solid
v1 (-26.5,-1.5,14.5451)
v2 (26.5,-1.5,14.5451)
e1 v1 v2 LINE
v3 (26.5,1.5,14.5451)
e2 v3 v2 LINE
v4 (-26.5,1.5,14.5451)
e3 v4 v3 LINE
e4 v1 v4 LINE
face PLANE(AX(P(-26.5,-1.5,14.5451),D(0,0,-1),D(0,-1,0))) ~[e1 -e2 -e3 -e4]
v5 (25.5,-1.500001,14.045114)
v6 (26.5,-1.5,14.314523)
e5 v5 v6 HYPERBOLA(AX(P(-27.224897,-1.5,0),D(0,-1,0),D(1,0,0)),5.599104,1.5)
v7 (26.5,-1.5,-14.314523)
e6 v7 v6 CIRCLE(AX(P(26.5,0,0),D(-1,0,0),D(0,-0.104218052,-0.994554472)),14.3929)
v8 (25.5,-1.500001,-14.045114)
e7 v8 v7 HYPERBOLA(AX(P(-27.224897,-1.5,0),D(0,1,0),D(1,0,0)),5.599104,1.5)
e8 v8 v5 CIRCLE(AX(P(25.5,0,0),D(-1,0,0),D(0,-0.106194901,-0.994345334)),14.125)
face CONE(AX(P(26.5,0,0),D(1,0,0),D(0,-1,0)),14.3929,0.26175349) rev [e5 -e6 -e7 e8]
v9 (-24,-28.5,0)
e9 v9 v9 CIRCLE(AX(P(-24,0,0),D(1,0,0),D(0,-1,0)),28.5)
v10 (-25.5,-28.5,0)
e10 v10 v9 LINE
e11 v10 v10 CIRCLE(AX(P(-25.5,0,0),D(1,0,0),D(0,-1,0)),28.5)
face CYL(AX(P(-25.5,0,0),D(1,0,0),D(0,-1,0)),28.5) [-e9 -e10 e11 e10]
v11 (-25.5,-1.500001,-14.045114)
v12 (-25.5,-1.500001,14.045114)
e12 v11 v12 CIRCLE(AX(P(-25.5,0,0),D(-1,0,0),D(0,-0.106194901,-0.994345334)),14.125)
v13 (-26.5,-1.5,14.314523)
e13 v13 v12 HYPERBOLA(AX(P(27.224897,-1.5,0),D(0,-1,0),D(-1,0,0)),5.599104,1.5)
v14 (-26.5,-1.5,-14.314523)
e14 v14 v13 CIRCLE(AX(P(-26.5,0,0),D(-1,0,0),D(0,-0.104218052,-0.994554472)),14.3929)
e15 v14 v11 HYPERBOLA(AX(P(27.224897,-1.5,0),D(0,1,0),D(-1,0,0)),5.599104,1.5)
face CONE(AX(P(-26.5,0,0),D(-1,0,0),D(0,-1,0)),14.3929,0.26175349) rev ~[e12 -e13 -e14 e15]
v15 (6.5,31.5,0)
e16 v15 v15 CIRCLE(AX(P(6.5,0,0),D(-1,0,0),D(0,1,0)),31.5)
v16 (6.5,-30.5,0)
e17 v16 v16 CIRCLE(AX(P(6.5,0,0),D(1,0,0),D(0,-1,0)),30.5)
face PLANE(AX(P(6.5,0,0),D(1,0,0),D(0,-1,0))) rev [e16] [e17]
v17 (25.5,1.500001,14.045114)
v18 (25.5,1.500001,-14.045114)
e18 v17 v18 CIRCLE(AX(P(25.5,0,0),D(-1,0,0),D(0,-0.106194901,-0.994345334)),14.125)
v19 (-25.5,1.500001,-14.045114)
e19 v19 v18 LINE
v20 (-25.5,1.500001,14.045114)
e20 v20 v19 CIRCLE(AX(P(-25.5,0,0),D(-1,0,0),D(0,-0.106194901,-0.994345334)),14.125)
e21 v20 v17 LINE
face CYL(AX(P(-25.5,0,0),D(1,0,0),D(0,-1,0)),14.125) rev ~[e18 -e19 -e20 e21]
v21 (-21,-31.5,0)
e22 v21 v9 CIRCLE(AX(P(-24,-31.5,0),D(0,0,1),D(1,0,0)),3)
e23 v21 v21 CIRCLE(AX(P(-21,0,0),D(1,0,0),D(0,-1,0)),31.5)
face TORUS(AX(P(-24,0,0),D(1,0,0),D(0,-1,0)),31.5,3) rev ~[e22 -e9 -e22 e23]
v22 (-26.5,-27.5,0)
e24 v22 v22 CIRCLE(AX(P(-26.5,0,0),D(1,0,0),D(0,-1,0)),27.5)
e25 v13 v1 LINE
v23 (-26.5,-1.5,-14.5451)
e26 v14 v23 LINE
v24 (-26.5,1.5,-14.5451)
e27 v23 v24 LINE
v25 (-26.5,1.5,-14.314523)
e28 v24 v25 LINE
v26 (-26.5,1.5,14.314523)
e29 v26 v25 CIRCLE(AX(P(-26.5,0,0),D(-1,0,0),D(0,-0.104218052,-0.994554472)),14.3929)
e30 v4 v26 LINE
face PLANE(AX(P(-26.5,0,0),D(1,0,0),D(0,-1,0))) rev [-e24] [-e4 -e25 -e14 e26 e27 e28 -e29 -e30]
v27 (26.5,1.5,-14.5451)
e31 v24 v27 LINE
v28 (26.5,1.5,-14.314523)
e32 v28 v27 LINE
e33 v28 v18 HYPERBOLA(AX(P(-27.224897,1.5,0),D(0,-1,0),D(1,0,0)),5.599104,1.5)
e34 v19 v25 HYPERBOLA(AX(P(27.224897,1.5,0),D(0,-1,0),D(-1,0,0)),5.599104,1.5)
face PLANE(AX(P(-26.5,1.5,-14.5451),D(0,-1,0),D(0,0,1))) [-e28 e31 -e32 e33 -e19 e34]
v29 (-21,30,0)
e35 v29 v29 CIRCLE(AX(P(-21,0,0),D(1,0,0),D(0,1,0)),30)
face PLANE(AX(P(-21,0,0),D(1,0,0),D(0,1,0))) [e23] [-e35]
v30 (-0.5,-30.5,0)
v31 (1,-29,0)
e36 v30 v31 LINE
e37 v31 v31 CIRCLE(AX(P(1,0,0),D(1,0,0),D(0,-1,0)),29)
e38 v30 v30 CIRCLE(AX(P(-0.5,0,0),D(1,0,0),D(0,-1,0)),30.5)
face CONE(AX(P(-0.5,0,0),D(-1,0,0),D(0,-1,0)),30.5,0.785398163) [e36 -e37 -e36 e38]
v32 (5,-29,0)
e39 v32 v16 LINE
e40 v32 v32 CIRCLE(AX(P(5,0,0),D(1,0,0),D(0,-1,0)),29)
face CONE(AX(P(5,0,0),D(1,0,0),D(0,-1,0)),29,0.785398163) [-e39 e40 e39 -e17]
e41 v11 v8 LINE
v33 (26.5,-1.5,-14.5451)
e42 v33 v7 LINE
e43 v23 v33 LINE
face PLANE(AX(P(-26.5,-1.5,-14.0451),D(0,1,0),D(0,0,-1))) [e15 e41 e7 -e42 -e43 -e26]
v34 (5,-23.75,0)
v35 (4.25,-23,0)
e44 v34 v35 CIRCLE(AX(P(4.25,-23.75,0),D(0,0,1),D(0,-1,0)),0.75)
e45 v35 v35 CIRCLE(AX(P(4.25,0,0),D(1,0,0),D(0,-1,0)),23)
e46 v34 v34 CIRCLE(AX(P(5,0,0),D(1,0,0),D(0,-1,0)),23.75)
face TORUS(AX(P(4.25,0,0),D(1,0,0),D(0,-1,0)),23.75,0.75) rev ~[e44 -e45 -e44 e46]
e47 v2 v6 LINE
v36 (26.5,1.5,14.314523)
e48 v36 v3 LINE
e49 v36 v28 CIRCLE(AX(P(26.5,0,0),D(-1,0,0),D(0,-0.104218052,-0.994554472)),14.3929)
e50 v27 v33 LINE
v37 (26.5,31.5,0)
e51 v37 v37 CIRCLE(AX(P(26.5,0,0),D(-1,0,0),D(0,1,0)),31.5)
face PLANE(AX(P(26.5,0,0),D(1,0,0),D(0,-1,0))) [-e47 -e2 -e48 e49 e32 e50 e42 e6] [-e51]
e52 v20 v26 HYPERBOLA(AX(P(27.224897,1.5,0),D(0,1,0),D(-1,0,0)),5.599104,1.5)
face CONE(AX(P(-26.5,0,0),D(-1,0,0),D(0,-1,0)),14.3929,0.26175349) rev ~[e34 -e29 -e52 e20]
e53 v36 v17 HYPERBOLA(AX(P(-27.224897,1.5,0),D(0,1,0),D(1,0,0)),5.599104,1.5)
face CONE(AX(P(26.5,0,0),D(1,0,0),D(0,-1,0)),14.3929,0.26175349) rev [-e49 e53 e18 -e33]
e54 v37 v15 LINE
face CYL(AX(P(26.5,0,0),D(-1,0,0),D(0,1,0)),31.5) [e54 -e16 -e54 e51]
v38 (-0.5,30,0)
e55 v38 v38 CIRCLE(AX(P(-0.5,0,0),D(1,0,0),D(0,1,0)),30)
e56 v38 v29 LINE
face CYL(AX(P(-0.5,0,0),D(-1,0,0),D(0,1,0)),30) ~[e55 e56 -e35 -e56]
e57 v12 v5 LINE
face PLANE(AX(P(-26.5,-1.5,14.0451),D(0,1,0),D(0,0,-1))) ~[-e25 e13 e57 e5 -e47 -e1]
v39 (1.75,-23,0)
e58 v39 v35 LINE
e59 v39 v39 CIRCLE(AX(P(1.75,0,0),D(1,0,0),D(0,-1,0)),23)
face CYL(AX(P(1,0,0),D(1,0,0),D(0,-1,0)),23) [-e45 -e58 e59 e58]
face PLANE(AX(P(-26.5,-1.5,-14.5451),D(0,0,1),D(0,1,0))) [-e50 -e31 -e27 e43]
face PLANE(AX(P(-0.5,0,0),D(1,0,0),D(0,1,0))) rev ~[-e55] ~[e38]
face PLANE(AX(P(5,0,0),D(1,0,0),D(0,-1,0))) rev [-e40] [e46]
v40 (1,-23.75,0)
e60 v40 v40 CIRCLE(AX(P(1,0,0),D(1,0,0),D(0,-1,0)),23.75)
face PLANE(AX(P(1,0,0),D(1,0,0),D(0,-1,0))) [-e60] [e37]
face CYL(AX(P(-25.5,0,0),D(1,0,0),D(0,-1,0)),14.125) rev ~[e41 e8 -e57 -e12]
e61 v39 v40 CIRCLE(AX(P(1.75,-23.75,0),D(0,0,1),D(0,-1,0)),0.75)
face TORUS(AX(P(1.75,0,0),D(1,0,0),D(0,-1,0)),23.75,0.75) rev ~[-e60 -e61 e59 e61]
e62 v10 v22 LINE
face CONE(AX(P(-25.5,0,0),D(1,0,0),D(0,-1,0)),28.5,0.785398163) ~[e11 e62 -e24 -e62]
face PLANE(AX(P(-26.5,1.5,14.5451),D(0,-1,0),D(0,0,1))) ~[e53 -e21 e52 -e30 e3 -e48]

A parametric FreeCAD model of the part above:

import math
import FreeCAD as App
import Part
import Sketcher


def edges_at(feature, points):
    """Names of the edges that pass closest to the given points."""
    edges = feature.Shape.Edges
    near = lambda p: min(range(len(edges)), key=lambda i: edges[i].distToShape(Part.Vertex(*p))[0])
    return sorted({f"Edge{near(p) + 1}" for p in points})

doc = App.newDocument("Part")
body = doc.addObject("PartDesign::Body", "Body")

sketch1 = doc.addObject("Sketcher::SketchObject", "Sketch")
body.addObject(sketch1)
sketch1.AttachmentSupport = (doc.XY_Plane, [""])
sketch1.MapMode = "FlatFace"
sketch1.addGeometry([
    Part.LineSegment(App.Vector(-25.5, -14.1, 0), App.Vector(-26.5, -14.4, 0)),
    Part.LineSegment(App.Vector(-26.5, -14.4, 0), App.Vector(-26.5, -27.5, 0)),
    Part.LineSegment(App.Vector(-26.5, -27.5, 0), App.Vector(-25.5, -28.5, 0)),
    Part.LineSegment(App.Vector(-25.5, -28.5, 0), App.Vector(-24, -28.5, 0)),
    Part.ArcOfCircle(Part.Circle(App.Vector(-24, -31.5, 0), App.Vector(0, 0, 1), 3), math.radians(0), math.radians(90)),
    Part.LineSegment(App.Vector(-21, -31.5, 0), App.Vector(-21, -36.8, 0)),
    Part.LineSegment(App.Vector(-21, -36.8, 0), App.Vector(-0.5, -36.8, 0)),
    Part.LineSegment(App.Vector(-0.5, -36.8, 0), App.Vector(-0.5, -30.5, 0)),
    Part.LineSegment(App.Vector(-0.5, -30.5, 0), App.Vector(1, -29, 0)),
    Part.LineSegment(App.Vector(1, -29, 0), App.Vector(1, -23, 0)),
    Part.LineSegment(App.Vector(1, -23, 0), App.Vector(5, -23, 0)),
    Part.LineSegment(App.Vector(5, -23, 0), App.Vector(5, -29, 0)),
    Part.LineSegment(App.Vector(5, -29, 0), App.Vector(6.5, -30.5, 0)),
    Part.LineSegment(App.Vector(6.5, -30.5, 0), App.Vector(6.5, -45.1, 0)),
    Part.LineSegment(App.Vector(6.5, -45.1, 0), App.Vector(26.5, -45.1, 0)),
    Part.LineSegment(App.Vector(26.5, -45.1, 0), App.Vector(26.5, -14.4, 0)),
    Part.LineSegment(App.Vector(26.5, -14.4, 0), App.Vector(25.5, -14.1, 0)),
    Part.LineSegment(App.Vector(25.5, -14.1, 0), App.Vector(-25.5, -14.1, 0)),
], False)
sketch1.addConstraint([
    Sketcher.Constraint("Coincident", 0, 2, 1, 1),
    Sketcher.Constraint("Coincident", 1, 2, 2, 1),
    Sketcher.Constraint("Coincident", 2, 2, 3, 1),
    Sketcher.Constraint("Tangent", 3, 2, 4, 2),
    Sketcher.Constraint("Tangent", 4, 1, 5, 1),
    Sketcher.Constraint("Coincident", 5, 2, 6, 1),
    Sketcher.Constraint("Coincident", 6, 2, 7, 1),
    Sketcher.Constraint("Coincident", 7, 2, 8, 1),
    Sketcher.Constraint("Coincident", 8, 2, 9, 1),
    Sketcher.Constraint("Coincident", 9, 2, 10, 1),
    Sketcher.Constraint("Coincident", 10, 2, 11, 1),
    Sketcher.Constraint("Coincident", 11, 2, 12, 1),
    Sketcher.Constraint("Coincident", 12, 2, 13, 1),
    Sketcher.Constraint("Coincident", 13, 2, 14, 1),
    Sketcher.Constraint("Coincident", 14, 2, 15, 1),
    Sketcher.Constraint("Coincident", 15, 2, 16, 1),
    Sketcher.Constraint("Coincident", 16, 2, 17, 1),
    Sketcher.Constraint("Coincident", 17, 2, 0, 1),
    Sketcher.Constraint("Vertical", 1),
    Sketcher.Constraint("Horizontal", 3),
    Sketcher.Constraint("Vertical", 5),
    Sketcher.Constraint("Horizontal", 6),
    Sketcher.Constraint("Vertical", 7),
    Sketcher.Constraint("Vertical", 9),
    Sketcher.Constraint("Horizontal", 10),
    Sketcher.Constraint("Vertical", 11),
    Sketcher.Constraint("Vertical", 13),
    Sketcher.Constraint("Horizontal", 14),
    Sketcher.Constraint("Vertical", 15),
    Sketcher.Constraint("Horizontal", 17),
    Sketcher.Constraint("Symmetric", 0, 2, 15, 2, -2),
    Sketcher.Constraint("Perpendicular", 2, 8),
    Sketcher.Constraint("Perpendicular", 8, 12),
    Sketcher.Constraint("Horizontal", 8, 2, 11, 2),
    Sketcher.Constraint("Horizontal", 7, 2, 12, 2),
    Sketcher.Constraint("Vertical", 2, 2, 17, 2),
    Sketcher.Constraint("Equal", 8, 12),
    Sketcher.Constraint("Equal", 0, 16),
    Sketcher.Constraint("Radius", 4, 3.0),
    Sketcher.Constraint("DistanceX", 10, 1, 10, 2, 4.0),
    Sketcher.Constraint("DistanceX", 14, 1, 14, 2, 20.0),
    Sketcher.Constraint("DistanceX", -1, 1, 8, 2, 1.0),
    Sketcher.Constraint("DistanceY", 4, 3, 1, 2, 4.0),
    Sketcher.Constraint("DistanceY", 4, 1, 7, 2, 1.0),
    Sketcher.Constraint("DistanceX", 7, 2, 12, 2, 7.0),
    Sketcher.Constraint("DistanceX", 1, 2, 4, 1, 5.5),
    Sketcher.Constraint("DistanceY", 3, 2, 9, 2, 5.5),
    Sketcher.Constraint("DistanceY", 8, 2, -1, 1, 29.0),
    Sketcher.Constraint("DistanceY", 5, 2, 5, 1, 5.25),
    Sketcher.Constraint("DistanceY", 1, 2, 1, 1, 13.107),
    Sketcher.Constraint("DistanceY", 13, 2, 13, 1, 14.625),
    Sketcher.Constraint("DistanceY", 16, 2, -1, 1, 14.125),
])
revolution = doc.addObject("PartDesign::Revolution", "Revolution")
body.addObject(revolution)
revolution.Profile = sketch1
revolution.ReferenceAxis = (sketch1, ["H_Axis"])
revolution.Angle = 360

sketch2 = doc.addObject("Sketcher::SketchObject", "Sketch001")
body.addObject(sketch2)
sketch2.AttachmentSupport = (doc.XY_Plane, [""])
sketch2.MapMode = "FlatFace"
sketch2.addGeometry([
    Part.LineSegment(App.Vector(26, 32, 0), App.Vector(26, 45, 0)),
    Part.LineSegment(App.Vector(26, 45, 0), App.Vector(6, 45, 0)),
    Part.LineSegment(App.Vector(6, 45, 0), App.Vector(6, 32, 0)),
    Part.LineSegment(App.Vector(6, 32, 0), App.Vector(26, 32, 0)),
], False)
sketch2.addConstraint([
    Sketcher.Constraint("Coincident", 0, 2, 1, 1),
    Sketcher.Constraint("Coincident", 1, 2, 2, 1),
    Sketcher.Constraint("Coincident", 2, 2, 3, 1),
    Sketcher.Constraint("Coincident", 3, 2, 0, 1),
    Sketcher.Constraint("Vertical", 0),
    Sketcher.Constraint("Horizontal", 1),
    Sketcher.Constraint("Vertical", 2),
    Sketcher.Constraint("Horizontal", 3),
    Sketcher.Constraint("DistanceX", 1, 2, 1, 1, 20.0),
    Sketcher.Constraint("DistanceX", -1, 1, 0, 2, 26.5),
    Sketcher.Constraint("DistanceY", -1, 1, 2, 2, 31.5),
    Sketcher.Constraint("DistanceY", 0, 1, 0, 2, 13.625),
])
groove = doc.addObject("PartDesign::Groove", "Groove")
body.addObject(groove)
groove.Profile = sketch2
groove.ReferenceAxis = (sketch2, ["H_Axis"])
groove.Angle = 360
doc.recompute()

fillet = doc.addObject("PartDesign::Fillet", "Fillet")
body.addObject(fillet)
fillet.Base = (groove, edges_at(groove, [(1, 23, 0), (5, 23, 0)]))
fillet.Radius = 0.75

sketch3 = doc.addObject("Sketcher::SketchObject", "Sketch002")
body.addObject(sketch3)
sketch3.AttachmentSupport = (doc.XY_Plane, [""])
sketch3.MapMode = "FlatFace"
sketch3.addGeometry([
    Part.LineSegment(App.Vector(0, 37, 0), App.Vector(-21, 37, 0)),
    Part.LineSegment(App.Vector(-21, 37, 0), App.Vector(-21, 30, 0)),
    Part.LineSegment(App.Vector(-21, 30, 0), App.Vector(0, 30, 0)),
    Part.LineSegment(App.Vector(0, 30, 0), App.Vector(0, 37, 0)),
], False)
sketch3.addConstraint([
    Sketcher.Constraint("Coincident", 0, 2, 1, 1),
    Sketcher.Constraint("Coincident", 1, 2, 2, 1),
    Sketcher.Constraint("Coincident", 2, 2, 3, 1),
    Sketcher.Constraint("Coincident", 3, 2, 0, 1),
    Sketcher.Constraint("Horizontal", 0),
    Sketcher.Constraint("Vertical", 1),
    Sketcher.Constraint("Horizontal", 2),
    Sketcher.Constraint("Vertical", 3),
    Sketcher.Constraint("DistanceX", 0, 2, 0, 1, 20.5),
    Sketcher.Constraint("DistanceX", 0, 2, -1, 1, 21.0),
    Sketcher.Constraint("DistanceY", -1, 1, 1, 2, 30.0),
    Sketcher.Constraint("DistanceY", 1, 2, 1, 1, 6.75),
])
groove2 = doc.addObject("PartDesign::Groove", "Groove001")
body.addObject(groove2)
groove2.Profile = sketch3
groove2.ReferenceAxis = (sketch3, ["H_Axis"])
groove2.Angle = 360

sketch4 = doc.addObject("Sketcher::SketchObject", "Sketch003")
body.addObject(sketch4)
sketch4.AttachmentSupport = (doc.YZ_Plane, [""])
sketch4.MapMode = "FlatFace"
sketch4.AttachmentOffset = App.Placement(App.Vector(0, 0, -26.5), App.Rotation())
sketch4.addGeometry([
    Part.LineSegment(App.Vector(1.5, -14, 0), App.Vector(1.5, -14.5, 0)),
    Part.LineSegment(App.Vector(1.5, -14.5, 0), App.Vector(-1.5, -14.5, 0)),
    Part.LineSegment(App.Vector(-1.5, -14.5, 0), App.Vector(-1.5, -14, 0)),
    Part.LineSegment(App.Vector(-1.5, -14, 0), App.Vector(1.5, -14, 0)),
], False)
sketch4.addConstraint([
    Sketcher.Constraint("Coincident", 0, 2, 1, 1),
    Sketcher.Constraint("Coincident", 1, 2, 2, 1),
    Sketcher.Constraint("Coincident", 2, 2, 3, 1),
    Sketcher.Constraint("Coincident", 3, 2, 0, 1),
    Sketcher.Constraint("Vertical", 0),
    Sketcher.Constraint("Horizontal", 1),
    Sketcher.Constraint("Vertical", 2),
    Sketcher.Constraint("Horizontal", 3),
    Sketcher.Constraint("DistanceX", 1, 2, 1, 1, 3.0),
    Sketcher.Constraint("DistanceY", 0, 2, 0, 1, 0.5),
    Sketcher.Constraint("DistanceX", -1, 1, 0, 2, 1.5),
    Sketcher.Constraint("DistanceY", 0, 2, -1, 1, 14.545),
])
pocket1 = doc.addObject("PartDesign::Pocket", "Pocket")
body.addObject(pocket1)
pocket1.Profile = sketch4
pocket1.Type = "ThroughAll"
pocket1.Reversed = True
doc.recompute()

mirrored = doc.addObject("PartDesign::Mirrored", "Mirrored")
body.addObject(mirrored)
mirrored.Originals = [pocket1]
mirrored.MirrorPlane = (doc.XY_Plane, [""])
body.Tip = mirrored

doc.recompute()
